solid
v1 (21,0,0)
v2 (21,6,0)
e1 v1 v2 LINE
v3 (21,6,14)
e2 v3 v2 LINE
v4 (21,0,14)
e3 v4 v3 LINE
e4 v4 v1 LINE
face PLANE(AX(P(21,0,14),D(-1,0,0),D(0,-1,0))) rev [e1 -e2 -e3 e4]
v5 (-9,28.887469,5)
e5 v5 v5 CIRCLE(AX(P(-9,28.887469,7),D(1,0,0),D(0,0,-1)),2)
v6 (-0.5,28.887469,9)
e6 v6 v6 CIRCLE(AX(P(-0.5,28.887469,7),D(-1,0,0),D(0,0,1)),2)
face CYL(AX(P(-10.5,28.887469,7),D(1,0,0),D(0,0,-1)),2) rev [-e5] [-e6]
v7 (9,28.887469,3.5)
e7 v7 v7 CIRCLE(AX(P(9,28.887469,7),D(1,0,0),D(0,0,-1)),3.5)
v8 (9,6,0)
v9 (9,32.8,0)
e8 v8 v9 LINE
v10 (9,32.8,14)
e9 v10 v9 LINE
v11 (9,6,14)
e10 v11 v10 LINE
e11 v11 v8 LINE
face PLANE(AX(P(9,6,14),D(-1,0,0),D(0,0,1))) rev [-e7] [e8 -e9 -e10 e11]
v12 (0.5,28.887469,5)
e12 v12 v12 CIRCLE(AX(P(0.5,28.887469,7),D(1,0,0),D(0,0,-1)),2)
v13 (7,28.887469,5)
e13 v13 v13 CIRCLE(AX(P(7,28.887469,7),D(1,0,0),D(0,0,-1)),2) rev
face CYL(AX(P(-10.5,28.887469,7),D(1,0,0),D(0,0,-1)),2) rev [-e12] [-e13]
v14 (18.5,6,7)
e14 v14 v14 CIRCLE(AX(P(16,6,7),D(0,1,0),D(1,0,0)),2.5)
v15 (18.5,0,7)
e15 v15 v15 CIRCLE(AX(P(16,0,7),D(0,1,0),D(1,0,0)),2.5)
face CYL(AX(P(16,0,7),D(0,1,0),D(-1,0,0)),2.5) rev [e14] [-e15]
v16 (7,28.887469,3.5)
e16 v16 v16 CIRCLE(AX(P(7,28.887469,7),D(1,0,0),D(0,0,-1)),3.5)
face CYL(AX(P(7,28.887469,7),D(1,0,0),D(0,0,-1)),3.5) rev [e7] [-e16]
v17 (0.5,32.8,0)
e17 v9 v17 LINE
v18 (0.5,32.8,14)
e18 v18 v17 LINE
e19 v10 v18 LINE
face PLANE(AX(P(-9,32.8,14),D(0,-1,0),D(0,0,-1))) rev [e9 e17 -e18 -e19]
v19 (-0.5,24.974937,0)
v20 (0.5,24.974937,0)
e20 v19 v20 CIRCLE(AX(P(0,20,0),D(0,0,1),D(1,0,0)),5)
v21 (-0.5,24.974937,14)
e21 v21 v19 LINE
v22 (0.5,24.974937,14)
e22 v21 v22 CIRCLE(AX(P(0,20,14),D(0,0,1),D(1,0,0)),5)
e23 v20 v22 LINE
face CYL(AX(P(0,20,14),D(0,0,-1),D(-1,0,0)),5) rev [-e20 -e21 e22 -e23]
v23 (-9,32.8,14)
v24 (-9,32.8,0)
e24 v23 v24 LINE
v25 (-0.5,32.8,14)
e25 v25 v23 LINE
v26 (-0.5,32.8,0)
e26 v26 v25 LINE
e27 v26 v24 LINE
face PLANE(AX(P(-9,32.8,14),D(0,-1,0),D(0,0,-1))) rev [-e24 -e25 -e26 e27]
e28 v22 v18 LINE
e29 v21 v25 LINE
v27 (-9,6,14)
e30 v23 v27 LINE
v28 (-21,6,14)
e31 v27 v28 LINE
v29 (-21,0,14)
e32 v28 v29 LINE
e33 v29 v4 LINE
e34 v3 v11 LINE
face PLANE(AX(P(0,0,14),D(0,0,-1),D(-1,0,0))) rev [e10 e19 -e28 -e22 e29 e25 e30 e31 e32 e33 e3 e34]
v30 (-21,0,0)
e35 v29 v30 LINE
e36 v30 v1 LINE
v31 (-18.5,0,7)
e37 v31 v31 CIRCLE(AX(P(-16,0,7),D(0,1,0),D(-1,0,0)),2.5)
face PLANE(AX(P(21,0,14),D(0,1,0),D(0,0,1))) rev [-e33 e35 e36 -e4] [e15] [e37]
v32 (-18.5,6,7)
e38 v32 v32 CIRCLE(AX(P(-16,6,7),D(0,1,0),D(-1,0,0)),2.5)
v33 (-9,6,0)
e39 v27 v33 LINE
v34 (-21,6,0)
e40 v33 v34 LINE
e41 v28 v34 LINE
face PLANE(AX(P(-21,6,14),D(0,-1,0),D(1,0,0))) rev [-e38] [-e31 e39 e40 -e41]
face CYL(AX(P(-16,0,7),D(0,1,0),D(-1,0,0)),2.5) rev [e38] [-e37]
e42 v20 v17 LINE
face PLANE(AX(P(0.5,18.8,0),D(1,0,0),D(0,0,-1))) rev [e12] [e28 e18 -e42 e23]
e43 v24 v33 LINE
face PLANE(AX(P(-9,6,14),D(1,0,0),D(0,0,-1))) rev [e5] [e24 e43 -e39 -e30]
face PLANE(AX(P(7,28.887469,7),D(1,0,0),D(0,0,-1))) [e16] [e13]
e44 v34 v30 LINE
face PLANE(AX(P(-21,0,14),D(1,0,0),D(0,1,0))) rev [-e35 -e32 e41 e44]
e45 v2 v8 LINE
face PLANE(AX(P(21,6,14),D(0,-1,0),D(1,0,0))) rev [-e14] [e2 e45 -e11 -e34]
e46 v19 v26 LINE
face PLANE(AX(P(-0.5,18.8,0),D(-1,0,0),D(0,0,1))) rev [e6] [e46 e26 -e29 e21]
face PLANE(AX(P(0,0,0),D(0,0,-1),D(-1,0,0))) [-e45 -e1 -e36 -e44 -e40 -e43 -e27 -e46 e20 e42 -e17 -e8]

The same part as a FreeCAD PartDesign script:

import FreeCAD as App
import Part
import Sketcher
from FreeCAD import Vector

doc = App.newDocument("Part")
body = doc.addObject("PartDesign::Body", "Body")

# Sketch on XY plane
sketch1 = doc.addObject("Sketcher::SketchObject", "Sketch")
body.addObject(sketch1)
sketch1.AttachmentSupport = (doc.XY_Plane, [""])
sketch1.MapMode = "FlatFace"
sketch1.addGeometry(Part.LineSegment(Vector(-21, 0, 0), Vector(21, 0, 0)), False)
sketch1.addGeometry(Part.LineSegment(Vector(21, 0, 0), Vector(21, 6, 0)), False)
sketch1.addGeometry(Part.LineSegment(Vector(21, 6, 0), Vector(9, 6, 0)), False)
sketch1.addGeometry(Part.LineSegment(Vector(9, 6, 0), Vector(9, 33, 0)), False)
sketch1.addGeometry(Part.LineSegment(Vector(9, 33, 0), Vector(-9, 33, 0)), False)
sketch1.addGeometry(Part.LineSegment(Vector(-9, 33, 0), Vector(-9, 6, 0)), False)
sketch1.addGeometry(Part.LineSegment(Vector(-9, 6, 0), Vector(-21, 6, 0)), False)
sketch1.addGeometry(Part.LineSegment(Vector(-21, 6, 0), Vector(-21, 0, 0)), False)
sketch1.addGeometry(Part.Circle(Vector(0, 20, 0), Vector(0, 0, 1), 5), False)
sketch1.addConstraint(Sketcher.Constraint("Coincident", 0, 2, 1, 1))
sketch1.addConstraint(Sketcher.Constraint("Coincident", 1, 2, 2, 1))
sketch1.addConstraint(Sketcher.Constraint("Coincident", 2, 2, 3, 1))
sketch1.addConstraint(Sketcher.Constraint("Coincident", 3, 2, 4, 1))
sketch1.addConstraint(Sketcher.Constraint("Coincident", 4, 2, 5, 1))
sketch1.addConstraint(Sketcher.Constraint("Coincident", 5, 2, 6, 1))
sketch1.addConstraint(Sketcher.Constraint("Coincident", 6, 2, 7, 1))
sketch1.addConstraint(Sketcher.Constraint("Coincident", 7, 2, 0, 1))
sketch1.addConstraint(Sketcher.Constraint("Horizontal", 0))
sketch1.addConstraint(Sketcher.Constraint("Vertical", 1))
sketch1.addConstraint(Sketcher.Constraint("Horizontal", 2))
sketch1.addConstraint(Sketcher.Constraint("Vertical", 3))
sketch1.addConstraint(Sketcher.Constraint("Horizontal", 4))
sketch1.addConstraint(Sketcher.Constraint("Vertical", 5))
sketch1.addConstraint(Sketcher.Constraint("Horizontal", 6))
sketch1.addConstraint(Sketcher.Constraint("Vertical", 7))
sketch1.addConstraint(Sketcher.Constraint("Symmetric", 0, 2, 7, 2, -1, 1))
sketch1.addConstraint(Sketcher.Constraint("Symmetric", 2, 2, 5, 2, -2))
sketch1.addConstraint(Sketcher.Constraint("PointOnObject", 8, 3, -2))
sketch1.addConstraint(Sketcher.Constraint("Diameter", 8, 10.0))
sketch1.addConstraint(Sketcher.Constraint("DistanceX", 0, 1, 0, 2, 42.0))
sketch1.addConstraint(Sketcher.Constraint("DistanceX", 2, 2, 2, 1, 12.0))
sketch1.addConstraint(Sketcher.Constraint("DistanceY", 1, 1, 1, 2, 6.0))
sketch1.addConstraint(Sketcher.Constraint("DistanceY", 3, 1, 3, 2, 26.8))
sketch1.addConstraint(Sketcher.Constraint("DistanceY", -1, 1, 8, 3, 20.0))
pad1 = doc.addObject("PartDesign::Pad", "Pad")
body.addObject(pad1)
pad1.Profile = sketch1
pad1.Length = 14

# Sketch on XZ plane
sketch2 = doc.addObject("Sketcher::SketchObject", "Sketch001")
body.addObject(sketch2)
sketch2.AttachmentSupport = (doc.XZ_Plane, [""])
sketch2.MapMode = "FlatFace"
sketch2.AttachmentOffset = App.Placement(Vector(0, 0, -6), App.Rotation())
sketch2.addGeometry(Part.Circle(Vector(-16, 7, 0), Vector(0, 0, 1), 2.5), False)
sketch2.addGeometry(Part.Circle(Vector(16, 7, 0), Vector(0, 0, 1), 2.5), False)
sketch2.addConstraint(Sketcher.Constraint("Equal", 0, 1))
sketch2.addConstraint(Sketcher.Constraint("Symmetric", 0, 3, 1, 3, -2))
sketch2.addConstraint(Sketcher.Constraint("Diameter", 0, 5.0))
sketch2.addConstraint(Sketcher.Constraint("DistanceX", 0, 3, -1, 1, 16.0))
sketch2.addConstraint(Sketcher.Constraint("DistanceY", -1, 1, 0, 3, 7.0))
pocket1 = doc.addObject("PartDesign::Pocket", "Pocket")
body.addObject(pocket1)
pocket1.Profile = sketch2
pocket1.Type = "ThroughAll"
pocket1.Reversed = True

# Sketch on XZ plane
sketch3 = doc.addObject("Sketcher::SketchObject", "Sketch002")
body.addObject(sketch3)
sketch3.AttachmentSupport = (doc.XZ_Plane, [""])
sketch3.MapMode = "FlatFace"
sketch3.AttachmentOffset = App.Placement(Vector(0, 0, -32.8), App.Rotation())
sketch3.addGeometry(Part.LineSegment(Vector(-0.5, 0, 0), Vector(-0.5, 14, 0)), False)
sketch3.addGeometry(Part.LineSegment(Vector(-0.5, 14, 0), Vector(0.5, 14, 0)), False)
sketch3.addGeometry(Part.LineSegment(Vector(0.5, 14, 0), Vector(0.5, 0, 0)), False)
sketch3.addGeometry(Part.LineSegment(Vector(0.5, 0, 0), Vector(-0.5, 0, 0)), False)
sketch3.addConstraint(Sketcher.Constraint("Coincident", 0, 2, 1, 1))
sketch3.addConstraint(Sketcher.Constraint("Coincident", 1, 2, 2, 1))
sketch3.addConstraint(Sketcher.Constraint("Coincident", 2, 2, 3, 1))
sketch3.addConstraint(Sketcher.Constraint("Coincident", 3, 2, 0, 1))
sketch3.addConstraint(Sketcher.Constraint("Vertical", 0))
sketch3.addConstraint(Sketcher.Constraint("Horizontal", 1))
sketch3.addConstraint(Sketcher.Constraint("Vertical", 2))
sketch3.addConstraint(Sketcher.Constraint("Horizontal", 3))
sketch3.addConstraint(Sketcher.Constraint("Symmetric", 2, 2, 3, 2, -1, 1))
sketch3.addConstraint(Sketcher.Constraint("DistanceX", 1, 1, 1, 2, 1.0))
sketch3.addConstraint(Sketcher.Constraint("DistanceY", 0, 1, 0, 2, 14.0))
pocket2 = doc.addObject("PartDesign::Pocket", "Pocket001")
body.addObject(pocket2)
pocket2.Profile = sketch3
pocket2.Length = 14
pocket2.Reversed = True

# Sketch on YZ plane
sketch4 = doc.addObject("Sketcher::SketchObject", "Sketch003")
body.addObject(sketch4)
sketch4.AttachmentSupport = (doc.YZ_Plane, [""])
sketch4.MapMode = "FlatFace"
sketch4.AttachmentOffset = App.Placement(Vector(0, 0, -0.5), App.Rotation())
sketch4.addGeometry(Part.Circle(Vector(28.9, 7, 0), Vector(0, 0, 1), 2), False)
sketch4.addConstraint(Sketcher.Constraint("Diameter", 0, 4.0))
sketch4.addConstraint(Sketcher.Constraint("DistanceY", -1, 1, 0, 3, 7.0))
sketch4.addConstraint(Sketcher.Constraint("DistanceX", -1, 1, 0, 3, 28.887469))
pocket3 = doc.addObject("PartDesign::Pocket", "Pocket002")
body.addObject(pocket3)
pocket3.Profile = sketch4
pocket3.Length = 20
pocket3.Midplane = True

# Sketch on YZ plane
sketch5 = doc.addObject("Sketcher::SketchObject", "Sketch004")
body.addObject(sketch5)
sketch5.AttachmentSupport = (doc.YZ_Plane, [""])
sketch5.MapMode = "FlatFace"
sketch5.AttachmentOffset = App.Placement(Vector(0, 0, 9), App.Rotation())
sketch5.addGeometry(Part.Circle(Vector(28.9, 7, 0), Vector(0, 0, 1), 3.5), False)
sketch5.addConstraint(Sketcher.Constraint("Diameter", 0, 7.0))
sketch5.addConstraint(Sketcher.Constraint("DistanceY", -1, 1, 0, 3, 7.0))
sketch5.addConstraint(Sketcher.Constraint("DistanceX", -1, 1, 0, 3, 28.887469))
pocket4 = doc.addObject("PartDesign::Pocket", "Pocket003")
body.addObject(pocket4)
pocket4.Profile = sketch5
pocket4.Length = 2

doc.recompute()
